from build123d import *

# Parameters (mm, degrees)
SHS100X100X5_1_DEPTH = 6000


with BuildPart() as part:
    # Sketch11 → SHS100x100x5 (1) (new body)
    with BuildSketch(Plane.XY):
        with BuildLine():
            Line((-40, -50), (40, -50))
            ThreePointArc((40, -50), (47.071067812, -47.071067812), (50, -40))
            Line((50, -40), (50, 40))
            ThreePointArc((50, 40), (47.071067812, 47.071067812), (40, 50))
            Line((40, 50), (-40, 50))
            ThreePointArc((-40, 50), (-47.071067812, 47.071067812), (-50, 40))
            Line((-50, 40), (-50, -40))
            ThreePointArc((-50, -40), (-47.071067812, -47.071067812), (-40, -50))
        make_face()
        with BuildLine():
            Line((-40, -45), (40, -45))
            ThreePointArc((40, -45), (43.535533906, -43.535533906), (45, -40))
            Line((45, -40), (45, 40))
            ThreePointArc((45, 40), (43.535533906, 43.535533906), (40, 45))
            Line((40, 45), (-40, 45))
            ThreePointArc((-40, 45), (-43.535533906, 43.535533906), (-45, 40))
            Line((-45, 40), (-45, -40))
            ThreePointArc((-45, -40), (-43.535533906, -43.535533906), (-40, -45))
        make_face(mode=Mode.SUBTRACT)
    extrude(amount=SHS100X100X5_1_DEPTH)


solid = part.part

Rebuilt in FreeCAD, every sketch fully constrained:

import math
import FreeCAD as App
import Part
import Sketcher

doc = App.newDocument("Part")
body = doc.addObject("PartDesign::Body", "Body")

sketch1 = body.newObject("Sketcher::SketchObject", "Sketch")
sketch1.AttachmentSupport = (doc.getObject("XY_Plane"), [""])
sketch1.MapMode = "FlatFace"
sketch1.addGeometry(Part.LineSegment(App.Vector(-40, -50, 0), App.Vector(40, -50, 0)), False)
sketch1.addGeometry(Part.ArcOfCircle(Part.Circle(App.Vector(40, -40, 0), App.Vector(0, 0, 1), 10), math.radians(-90), math.radians(0)), False)
sketch1.addGeometry(Part.LineSegment(App.Vector(50, -40, 0), App.Vector(50, 40, 0)), False)
sketch1.addGeometry(Part.ArcOfCircle(Part.Circle(App.Vector(40, 40, 0), App.Vector(0, 0, 1), 10), math.radians(0), math.radians(90)), False)
sketch1.addGeometry(Part.LineSegment(App.Vector(40, 50, 0), App.Vector(-40, 50, 0)), False)
sketch1.addGeometry(Part.ArcOfCircle(Part.Circle(App.Vector(-40, 40, 0), App.Vector(0, 0, 1), 10), math.radians(90), math.radians(180)), False)
sketch1.addGeometry(Part.LineSegment(App.Vector(-50, 40, 0), App.Vector(-50, -40, 0)), False)
sketch1.addGeometry(Part.ArcOfCircle(Part.Circle(App.Vector(-40, -40, 0), App.Vector(0, 0, 1), 10), math.radians(180), math.radians(270)), False)
sketch1.addGeometry(Part.LineSegment(App.Vector(40, -45, 0), App.Vector(-40, -45, 0)), False)
sketch1.addGeometry(Part.ArcOfCircle(Part.Circle(App.Vector(-40, -40, 0), App.Vector(0, 0, 1), 5), math.radians(180), math.radians(270)), False)
sketch1.addGeometry(Part.LineSegment(App.Vector(-45, -40, 0), App.Vector(-45, 40, 0)), False)
sketch1.addGeometry(Part.ArcOfCircle(Part.Circle(App.Vector(-40, 40, 0), App.Vector(0, 0, 1), 5), math.radians(90), math.radians(180)), False)
sketch1.addGeometry(Part.LineSegment(App.Vector(-40, 45, 0), App.Vector(40, 45, 0)), False)
sketch1.addGeometry(Part.ArcOfCircle(Part.Circle(App.Vector(40, 40, 0), App.Vector(0, 0, 1), 5), math.radians(0), math.radians(90)), False)
sketch1.addGeometry(Part.LineSegment(App.Vector(45, 40, 0), App.Vector(45, -40, 0)), False)
sketch1.addGeometry(Part.ArcOfCircle(Part.Circle(App.Vector(40, -40, 0), App.Vector(0, 0, 1), 5), math.radians(-90), math.radians(0)), False)
sketch1.addConstraint(Sketcher.Constraint("Tangent", 0, 2, 1, 1))
sketch1.addConstraint(Sketcher.Constraint("Tangent", 1, 2, 2, 1))
sketch1.addConstraint(Sketcher.Constraint("Tangent", 2, 2, 3, 1))
sketch1.addConstraint(Sketcher.Constraint("Tangent", 3, 2, 4, 1))
sketch1.addConstraint(Sketcher.Constraint("Tangent", 4, 2, 5, 1))
sketch1.addConstraint(Sketcher.Constraint("Tangent", 5, 2, 6, 1))
sketch1.addConstraint(Sketcher.Constraint("Tangent", 6, 2, 7, 1))
sketch1.addConstraint(Sketcher.Constraint("Tangent", 7, 2, 0, 1))
sketch1.addConstraint(Sketcher.Constraint("Tangent", 8, 2, 9, 2))
sketch1.addConstraint(Sketcher.Constraint("Tangent", 9, 1, 10, 1))
sketch1.addConstraint(Sketcher.Constraint("Tangent", 10, 2, 11, 2))
sketch1.addConstraint(Sketcher.Constraint("Tangent", 11, 1, 12, 1))
sketch1.addConstraint(Sketcher.Constraint("Tangent", 12, 2, 13, 2))
sketch1.addConstraint(Sketcher.Constraint("Tangent", 13, 1, 14, 1))
sketch1.addConstraint(Sketcher.Constraint("Tangent", 14, 2, 15, 2))
sketch1.addConstraint(Sketcher.Constraint("Tangent", 15, 1, 8, 1))
sketch1.addConstraint(Sketcher.Constraint("Horizontal", 0))
sketch1.addConstraint(Sketcher.Constraint("Vertical", 2))
sketch1.addConstraint(Sketcher.Constraint("Horizontal", 4))
sketch1.addConstraint(Sketcher.Constraint("Vertical", 6))
sketch1.addConstraint(Sketcher.Constraint("Horizontal", 8))
sketch1.addConstraint(Sketcher.Constraint("Vertical", 10))
sketch1.addConstraint(Sketcher.Constraint("Horizontal", 12))
sketch1.addConstraint(Sketcher.Constraint("Vertical", 14))
sketch1.addConstraint(Sketcher.Constraint("Coincident", 9, 3, 7, 3))
sketch1.addConstraint(Sketcher.Constraint("Coincident", 11, 3, 5, 3))
sketch1.addConstraint(Sketcher.Constraint("Coincident", 13, 3, 3, 3))
sketch1.addConstraint(Sketcher.Constraint("Equal", 1, 3))
sketch1.addConstraint(Sketcher.Constraint("Equal", 3, 5))
sketch1.addConstraint(Sketcher.Constraint("Equal", 5, 7))
sketch1.addConstraint(Sketcher.Constraint("Equal", 13, 15))
sketch1.addConstraint(Sketcher.Constraint("Symmetric", 1, 3, 5, 3, -1, 1))
sketch1.addConstraint(Sketcher.Constraint("Equal", 12, 2))
sketch1.addConstraint(Sketcher.Constraint("Radius", 1, 10.0))
sketch1.addConstraint(Sketcher.Constraint("Radius", 9, 5.0))
sketch1.addConstraint(Sketcher.Constraint("DistanceX", 0, 1, 0, 2, 80.0))
pad1 = body.newObject("PartDesign::Pad", "Pad")
pad1.Profile = sketch1
pad1.Length = 6000

doc.recompute()
